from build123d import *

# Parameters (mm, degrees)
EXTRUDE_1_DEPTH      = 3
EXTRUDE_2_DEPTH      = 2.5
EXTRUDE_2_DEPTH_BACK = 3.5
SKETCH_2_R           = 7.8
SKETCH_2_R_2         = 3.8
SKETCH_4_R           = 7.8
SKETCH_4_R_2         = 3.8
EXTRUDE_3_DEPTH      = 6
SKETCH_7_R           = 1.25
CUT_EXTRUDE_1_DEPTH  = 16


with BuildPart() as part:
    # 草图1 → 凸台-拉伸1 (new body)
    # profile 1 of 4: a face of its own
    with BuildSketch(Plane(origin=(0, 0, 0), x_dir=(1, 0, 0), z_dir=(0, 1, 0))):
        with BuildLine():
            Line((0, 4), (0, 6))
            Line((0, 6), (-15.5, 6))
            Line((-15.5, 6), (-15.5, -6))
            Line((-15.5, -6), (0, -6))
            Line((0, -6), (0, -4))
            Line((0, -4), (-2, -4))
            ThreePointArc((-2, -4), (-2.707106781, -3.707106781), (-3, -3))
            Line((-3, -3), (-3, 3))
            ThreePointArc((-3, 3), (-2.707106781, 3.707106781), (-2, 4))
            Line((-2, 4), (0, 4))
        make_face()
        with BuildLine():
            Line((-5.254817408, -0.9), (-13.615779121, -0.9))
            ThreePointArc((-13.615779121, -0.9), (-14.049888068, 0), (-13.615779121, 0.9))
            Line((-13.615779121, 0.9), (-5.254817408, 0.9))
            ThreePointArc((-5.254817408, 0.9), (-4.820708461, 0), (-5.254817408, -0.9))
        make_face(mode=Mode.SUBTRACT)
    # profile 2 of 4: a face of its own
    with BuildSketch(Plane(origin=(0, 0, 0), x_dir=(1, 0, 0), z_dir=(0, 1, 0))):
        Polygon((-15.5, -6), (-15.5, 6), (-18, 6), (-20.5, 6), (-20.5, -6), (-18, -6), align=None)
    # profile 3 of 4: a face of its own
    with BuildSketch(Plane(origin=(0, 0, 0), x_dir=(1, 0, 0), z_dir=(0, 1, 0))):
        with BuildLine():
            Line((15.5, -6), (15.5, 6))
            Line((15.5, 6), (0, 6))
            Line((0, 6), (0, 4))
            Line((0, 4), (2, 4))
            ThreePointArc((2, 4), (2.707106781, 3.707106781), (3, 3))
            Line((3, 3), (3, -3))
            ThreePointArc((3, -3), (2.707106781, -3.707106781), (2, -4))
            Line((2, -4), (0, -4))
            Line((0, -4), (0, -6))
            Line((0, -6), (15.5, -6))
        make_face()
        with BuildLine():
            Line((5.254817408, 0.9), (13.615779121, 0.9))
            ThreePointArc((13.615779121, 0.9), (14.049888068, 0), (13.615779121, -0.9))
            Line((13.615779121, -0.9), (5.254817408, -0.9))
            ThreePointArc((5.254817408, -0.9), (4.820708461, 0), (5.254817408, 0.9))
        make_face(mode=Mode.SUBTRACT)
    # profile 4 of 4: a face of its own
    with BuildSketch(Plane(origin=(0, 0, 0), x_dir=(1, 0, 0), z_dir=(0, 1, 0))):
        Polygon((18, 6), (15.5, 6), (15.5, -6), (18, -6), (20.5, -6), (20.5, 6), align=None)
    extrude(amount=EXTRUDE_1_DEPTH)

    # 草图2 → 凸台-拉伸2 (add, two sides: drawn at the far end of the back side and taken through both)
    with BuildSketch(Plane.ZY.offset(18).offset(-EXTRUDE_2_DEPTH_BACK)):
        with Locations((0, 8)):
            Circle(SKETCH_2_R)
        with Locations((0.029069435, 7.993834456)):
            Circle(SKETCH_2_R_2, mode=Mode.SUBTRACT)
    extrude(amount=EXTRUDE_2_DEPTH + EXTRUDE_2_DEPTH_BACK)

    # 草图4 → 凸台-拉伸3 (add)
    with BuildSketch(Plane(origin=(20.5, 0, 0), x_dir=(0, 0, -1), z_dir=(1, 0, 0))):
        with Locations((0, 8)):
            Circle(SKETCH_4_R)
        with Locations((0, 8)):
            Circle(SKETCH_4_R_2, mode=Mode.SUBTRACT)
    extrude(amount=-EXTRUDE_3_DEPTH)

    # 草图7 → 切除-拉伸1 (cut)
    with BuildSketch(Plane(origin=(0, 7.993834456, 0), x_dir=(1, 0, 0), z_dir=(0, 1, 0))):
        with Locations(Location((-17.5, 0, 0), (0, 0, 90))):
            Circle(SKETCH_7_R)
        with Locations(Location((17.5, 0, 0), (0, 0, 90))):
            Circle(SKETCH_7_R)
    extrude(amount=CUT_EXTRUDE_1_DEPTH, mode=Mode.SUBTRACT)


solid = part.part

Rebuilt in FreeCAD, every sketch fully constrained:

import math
import FreeCAD as App
import Part
import Sketcher
Q = App.Units.Quantity


def add_polygon(sketch, points):
    """Adds a closed chain of lines whose ends are joined by coincident constraints."""
    first, n = sketch.GeometryCount, len(points)
    for a, b in zip(points, points[1:] + points[:1]):
        sketch.addGeometry(Part.LineSegment(App.Vector(*a, 0), App.Vector(*b, 0)), False)
    for i in range(n):
        sketch.addConstraint(Sketcher.Constraint("Coincident", first + i, 2, first + (i + 1) % n, 1))

doc = App.newDocument("Part")
body = doc.addObject("PartDesign::Body", "Body")

sketch1 = doc.addObject("Sketcher::SketchObject", "Sketch")
body.addObject(sketch1)
sketch1.AttachmentSupport = (doc.XZ_Plane, [""])
sketch1.MapMode = "FlatFace"
add_polygon(sketch1, [(-20.5, -6), (-20.5, 6), (20.5, 6), (20.5, -6)])
sketch1.addGeometry(Part.LineSegment(App.Vector(-2, -4, 0), App.Vector(2, -4, 0)), False)
sketch1.addGeometry(Part.ArcOfCircle(Part.Circle(App.Vector(2, -3, 0), App.Vector(0, 0, 1), 1), math.radians(-90), math.radians(0)), False)
sketch1.addGeometry(Part.LineSegment(App.Vector(3, -3, 0), App.Vector(3, 3, 0)), False)
sketch1.addGeometry(Part.ArcOfCircle(Part.Circle(App.Vector(2, 3, 0), App.Vector(0, 0, 1), 1), math.radians(0), math.radians(90)), False)
sketch1.addGeometry(Part.LineSegment(App.Vector(2, 4, 0), App.Vector(-2, 4, 0)), False)
sketch1.addGeometry(Part.ArcOfCircle(Part.Circle(App.Vector(-2, 3, 0), App.Vector(0, 0, 1), 1), math.radians(90), math.radians(180)), False)
sketch1.addGeometry(Part.LineSegment(App.Vector(-3, 3, 0), App.Vector(-3, -3, 0)), False)
sketch1.addGeometry(Part.ArcOfCircle(Part.Circle(App.Vector(-2, -3, 0), App.Vector(0, 0, 1), 1), math.radians(-180), math.radians(-90)), False)
sketch1.addGeometry(Part.ArcOfCircle(Part.Circle(App.Vector(-6, 0, 0), App.Vector(0, 0, 1), 1.1), math.radians(-52), math.radians(52)), False)
sketch1.addGeometry(Part.LineSegment(App.Vector(-5.3, 0.9, 0), App.Vector(-13.6, 0.9, 0)), False)
sketch1.addGeometry(Part.ArcOfCircle(Part.Circle(App.Vector(-12.9, 0, 0), App.Vector(0, 0, 1), 1.1), math.radians(128), math.radians(232)), False)
sketch1.addGeometry(Part.LineSegment(App.Vector(-13.6, -0.9, 0), App.Vector(-5.3, -0.9, 0)), False)
sketch1.addGeometry(Part.ArcOfCircle(Part.Circle(App.Vector(12.9, 0, 0), App.Vector(0, 0, 1), 1.1), math.radians(-52), math.radians(52)), False)
sketch1.addGeometry(Part.LineSegment(App.Vector(13.6, 0.9, 0), App.Vector(5.3, 0.9, 0)), False)
sketch1.addGeometry(Part.ArcOfCircle(Part.Circle(App.Vector(6, 0, 0), App.Vector(0, 0, 1), 1.1), math.radians(128), math.radians(232)), False)
sketch1.addGeometry(Part.LineSegment(App.Vector(5.3, -0.9, 0), App.Vector(13.6, -0.9, 0)), False)
sketch1.addConstraint(Sketcher.Constraint("Tangent", 4, 2, 5, 1))
sketch1.addConstraint(Sketcher.Constraint("Tangent", 5, 2, 6, 1))
sketch1.addConstraint(Sketcher.Constraint("Tangent", 6, 2, 7, 1))
sketch1.addConstraint(Sketcher.Constraint("Tangent", 7, 2, 8, 1))
sketch1.addConstraint(Sketcher.Constraint("Tangent", 8, 2, 9, 1))
sketch1.addConstraint(Sketcher.Constraint("Tangent", 9, 2, 10, 1))
sketch1.addConstraint(Sketcher.Constraint("Tangent", 10, 2, 11, 1))
sketch1.addConstraint(Sketcher.Constraint("Tangent", 11, 2, 4, 1))
sketch1.addConstraint(Sketcher.Constraint("Coincident", 12, 2, 13, 1))
sketch1.addConstraint(Sketcher.Constraint("Coincident", 13, 2, 14, 1))
sketch1.addConstraint(Sketcher.Constraint("Coincident", 14, 2, 15, 1))
sketch1.addConstraint(Sketcher.Constraint("Coincident", 15, 2, 12, 1))
sketch1.addConstraint(Sketcher.Constraint("Coincident", 16, 2, 17, 1))
sketch1.addConstraint(Sketcher.Constraint("Coincident", 17, 2, 18, 1))
sketch1.addConstraint(Sketcher.Constraint("Coincident", 18, 2, 19, 1))
sketch1.addConstraint(Sketcher.Constraint("Coincident", 19, 2, 16, 1))
sketch1.addConstraint(Sketcher.Constraint("Vertical", 0))
sketch1.addConstraint(Sketcher.Constraint("Horizontal", 1))
sketch1.addConstraint(Sketcher.Constraint("Vertical", 2))
sketch1.addConstraint(Sketcher.Constraint("Horizontal", 3))
sketch1.addConstraint(Sketcher.Constraint("Horizontal", 4))
sketch1.addConstraint(Sketcher.Constraint("Vertical", 6))
sketch1.addConstraint(Sketcher.Constraint("Horizontal", 8))
sketch1.addConstraint(Sketcher.Constraint("Vertical", 10))
sketch1.addConstraint(Sketcher.Constraint("Horizontal", 13))
sketch1.addConstraint(Sketcher.Constraint("Horizontal", 15))
sketch1.addConstraint(Sketcher.Constraint("Horizontal", 17))
sketch1.addConstraint(Sketcher.Constraint("Horizontal", 19))
sketch1.addConstraint(Sketcher.Constraint("Equal", 5, 7))
sketch1.addConstraint(Sketcher.Constraint("Equal", 7, 9))
sketch1.addConstraint(Sketcher.Constraint("Equal", 9, 11))
sketch1.addConstraint(Sketcher.Constraint("Equal", 12, 14))
sketch1.addConstraint(Sketcher.Constraint("Equal", 14, 16))
sketch1.addConstraint(Sketcher.Constraint("Equal", 16, 18))
sketch1.addConstraint(Sketcher.Constraint("Symmetric", 5, 3, 9, 3, -1, 1))
sketch1.addConstraint(Sketcher.Constraint("Symmetric", 14, 3, 16, 3, -1, 1))
sketch1.addConstraint(Sketcher.Constraint("Symmetric", 12, 3, 18, 3, -1, 1))
sketch1.addConstraint(Sketcher.Constraint("Symmetric", 0, 2, 2, 2, -1, 1))
sketch1.addConstraint(Sketcher.Constraint("Symmetric", 13, 2, 16, 2, -2))
sketch1.addConstraint(Sketcher.Constraint("Symmetric", 15, 2, 18, 2, -2))
sketch1.addConstraint(Sketcher.Constraint("Vertical", 13, 2, 14, 2))
sketch1.addConstraint(Sketcher.Constraint("Radius", 5, Q("1 mm")))
sketch1.addConstraint(Sketcher.Constraint("DistanceX", 1, 1, 1, 2, Q("41 mm")))
sketch1.addConstraint(Sketcher.Constraint("DistanceX", 4, 1, 4, 2, Q("4 mm")))
sketch1.addConstraint(Sketcher.Constraint("DistanceY", 0, 1, 0, 2, Q("12 mm")))
sketch1.addConstraint(Sketcher.Constraint("DistanceY", 6, 1, 6, 2, Q("6 mm")))
sketch1.addConstraint(Sketcher.Constraint("Radius", 12, Q("1.15 mm")))
sketch1.addConstraint(Sketcher.Constraint("DistanceY", -1, 1, 12, 2, Q("0.9 mm")))
sketch1.addConstraint(Sketcher.Constraint("DistanceX", 13, 2, 13, 1, Q("8.360962 mm")))
sketch1.addConstraint(Sketcher.Constraint("DistanceX", 12, 3, -1, 1, Q("5.970708 mm")))
pad1 = doc.addObject("PartDesign::Pad", "Pad")
body.addObject(pad1)
pad1.Profile = sketch1
pad1.Length = 3
pad1.Reversed = True

sketch2 = doc.addObject("Sketcher::SketchObject", "Sketch001")
body.addObject(sketch2)
sketch2.AttachmentSupport = (doc.YZ_Plane, [""])
sketch2.MapMode = "FlatFace"
sketch2.AttachmentOffset = App.Placement(App.Vector(0, 0, -18), App.Rotation())
sketch2.addGeometry(Part.Circle(App.Vector(8, 0, 0), App.Vector(0, 0, 1), 7.8), False)
sketch2.addGeometry(Part.Circle(App.Vector(8, 0, 0), App.Vector(0, 0, 1), 3.8), False)
sketch2.addConstraint(Sketcher.Constraint("PointOnObject", 0, 3, -1))
sketch2.addConstraint(Sketcher.Constraint("Diameter", 0, Q("15.6 mm")))
sketch2.addConstraint(Sketcher.Constraint("Diameter", 1, Q("7.6 mm")))
sketch2.addConstraint(Sketcher.Constraint("DistanceX", -1, 1, 0, 3, Q("8 mm")))
sketch2.addConstraint(Sketcher.Constraint("DistanceY", -1, 1, 1, 3, Q("0.029069 mm")))
sketch2.addConstraint(Sketcher.Constraint("DistanceX", -1, 1, 1, 3, Q("7.993834 mm")))
pad2 = doc.addObject("PartDesign::Pad", "Pad001")
body.addObject(pad2)
pad2.Profile = sketch2
pad2.Type = "TwoLengths"
pad2.Length = 2.5
pad2.Length2 = 3.5
pad2.Reversed = True

sketch3 = doc.addObject("Sketcher::SketchObject", "Sketch002")
body.addObject(sketch3)
sketch3.AttachmentSupport = (doc.YZ_Plane, [""])
sketch3.MapMode = "FlatFace"
sketch3.AttachmentOffset = App.Placement(App.Vector(0, 0, 20.5), App.Rotation())
sketch3.addGeometry(Part.Circle(App.Vector(8, 0, 0), App.Vector(0, 0, 1), 7.8), False)
sketch3.addGeometry(Part.Circle(App.Vector(8, 0, 0), App.Vector(0, 0, 1), 3.8), False)
sketch3.addConstraint(Sketcher.Constraint("Coincident", 1, 3, 0, 3))
sketch3.addConstraint(Sketcher.Constraint("PointOnObject", 0, 3, -1))
sketch3.addConstraint(Sketcher.Constraint("Diameter", 0, Q("15.6 mm")))
sketch3.addConstraint(Sketcher.Constraint("Diameter", 1, Q("7.6 mm")))
sketch3.addConstraint(Sketcher.Constraint("DistanceX", -1, 1, 0, 3, Q("8 mm")))
pad3 = doc.addObject("PartDesign::Pad", "Pad002")
body.addObject(pad3)
pad3.Profile = sketch3
pad3.Length = 6
pad3.Reversed = True

sketch4 = doc.addObject("Sketcher::SketchObject", "Sketch003")
body.addObject(sketch4)
sketch4.AttachmentSupport = (doc.XZ_Plane, [""])
sketch4.MapMode = "FlatFace"
sketch4.AttachmentOffset = App.Placement(App.Vector(0, 0, -7.993834), App.Rotation())
sketch4.addGeometry(Part.Circle(App.Vector(-17.5, 0, 0), App.Vector(0, 0, 1), 1.2), False)
sketch4.addGeometry(Part.Circle(App.Vector(17.5, 0, 0), App.Vector(0, 0, 1), 1.2), False)
sketch4.addConstraint(Sketcher.Constraint("Equal", 0, 1))
sketch4.addConstraint(Sketcher.Constraint("Symmetric", 0, 3, 1, 3, -1, 1))
sketch4.addConstraint(Sketcher.Constraint("PointOnObject", 0, 3, -1))
sketch4.addConstraint(Sketcher.Constraint("Diameter", 0, Q("2.5 mm")))
sketch4.addConstraint(Sketcher.Constraint("DistanceX", 0, 3, 1, 3, Q("35 mm")))
pocket1 = doc.addObject("PartDesign::Pocket", "Pocket")
body.addObject(pocket1)
pocket1.Profile = sketch4
pocket1.Length = 16

doc.recompute()
